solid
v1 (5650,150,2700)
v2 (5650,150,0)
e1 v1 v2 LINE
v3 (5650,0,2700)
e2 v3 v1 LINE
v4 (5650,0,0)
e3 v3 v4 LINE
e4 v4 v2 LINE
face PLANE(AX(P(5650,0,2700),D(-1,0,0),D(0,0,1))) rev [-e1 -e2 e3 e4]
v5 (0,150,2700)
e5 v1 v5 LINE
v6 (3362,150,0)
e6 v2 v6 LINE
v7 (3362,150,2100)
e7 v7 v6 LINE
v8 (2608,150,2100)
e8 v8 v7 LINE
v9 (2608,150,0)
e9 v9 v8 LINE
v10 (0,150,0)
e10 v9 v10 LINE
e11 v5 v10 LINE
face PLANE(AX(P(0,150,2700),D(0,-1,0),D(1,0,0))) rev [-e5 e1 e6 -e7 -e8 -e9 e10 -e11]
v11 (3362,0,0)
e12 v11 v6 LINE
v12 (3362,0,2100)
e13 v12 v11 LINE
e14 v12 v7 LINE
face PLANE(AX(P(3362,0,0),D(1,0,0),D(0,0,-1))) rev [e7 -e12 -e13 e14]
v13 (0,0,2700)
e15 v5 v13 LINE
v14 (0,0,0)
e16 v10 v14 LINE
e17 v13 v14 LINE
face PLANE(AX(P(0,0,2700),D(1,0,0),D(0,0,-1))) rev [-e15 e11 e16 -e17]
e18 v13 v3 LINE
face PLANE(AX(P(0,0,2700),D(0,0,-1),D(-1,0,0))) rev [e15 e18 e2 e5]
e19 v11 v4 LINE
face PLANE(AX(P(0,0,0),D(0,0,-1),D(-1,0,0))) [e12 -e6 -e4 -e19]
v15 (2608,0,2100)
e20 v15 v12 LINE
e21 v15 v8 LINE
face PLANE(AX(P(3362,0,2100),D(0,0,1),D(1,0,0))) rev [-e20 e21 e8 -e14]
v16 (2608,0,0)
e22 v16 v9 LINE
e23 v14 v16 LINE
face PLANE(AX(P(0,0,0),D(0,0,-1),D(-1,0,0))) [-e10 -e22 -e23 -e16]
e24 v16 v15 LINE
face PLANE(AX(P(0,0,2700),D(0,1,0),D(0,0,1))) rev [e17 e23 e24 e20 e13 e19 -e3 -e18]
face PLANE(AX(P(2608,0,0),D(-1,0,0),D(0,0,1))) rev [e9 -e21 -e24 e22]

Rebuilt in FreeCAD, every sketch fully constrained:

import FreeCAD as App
import Part
import Sketcher
Q = App.Units.Quantity


def add_polygon(sketch, points):
    """Adds a closed chain of lines whose ends are joined by coincident constraints."""
    first, n = sketch.GeometryCount, len(points)
    for a, b in zip(points, points[1:] + points[:1]):
        sketch.addGeometry(Part.LineSegment(App.Vector(*a, 0), App.Vector(*b, 0)), False)
    for i in range(n):
        sketch.addConstraint(Sketcher.Constraint("Coincident", first + i, 2, first + (i + 1) % n, 1))

doc = App.newDocument("Part")
body = doc.addObject("PartDesign::Body", "Body")

# Sketch on XY plane
sketch1 = doc.addObject("Sketcher::SketchObject", "Sketch")
body.addObject(sketch1)
sketch1.AttachmentSupport = (doc.XY_Plane, [""])
sketch1.MapMode = "FlatFace"
add_polygon(sketch1, [(0, 150), (0, 0), (5650, 0), (5650, 150)])  # lines 0-3
sketch1.addConstraint([
    Sketcher.Constraint("Vertical", 0),
    Sketcher.Constraint("Horizontal", 1),
    Sketcher.Constraint("Vertical", 2),
    Sketcher.Constraint("Horizontal", 3),
    Sketcher.Constraint("Coincident", 0, 2, -1, 1),
    Sketcher.Constraint("DistanceX", 1, 1, 1, 2, Q("5650 mm")),
    Sketcher.Constraint("DistanceY", 0, 2, 0, 1, Q("150 mm")),
])
pad1 = doc.addObject("PartDesign::Pad", "Pad")
body.addObject(pad1)
pad1.Profile = sketch1
pad1.Length = 2700

# Sketch on XZ plane
sketch2 = doc.addObject("Sketcher::SketchObject", "Sketch001")
body.addObject(sketch2)
sketch2.AttachmentSupport = (doc.XZ_Plane, [""])
sketch2.MapMode = "FlatFace"
sketch2.AttachmentOffset = App.Placement(App.Vector(0, 0, -150), App.Rotation())
add_polygon(sketch2, [(2608, 0), (2608, 2100), (3362, 2100), (3362, 0)])  # lines 0-3
sketch2.addConstraint([
    Sketcher.Constraint("Vertical", 0),
    Sketcher.Constraint("Horizontal", 1),
    Sketcher.Constraint("Vertical", 2),
    Sketcher.Constraint("Horizontal", 3),
    Sketcher.Constraint("PointOnObject", 2, 2, -1),
    Sketcher.Constraint("DistanceX", 1, 1, 1, 2, Q("754 mm")),
    Sketcher.Constraint("DistanceY", 0, 1, 0, 2, Q("2100 mm")),
    Sketcher.Constraint("DistanceX", -1, 1, 0, 2, Q("2608 mm")),
])
pocket1 = doc.addObject("PartDesign::Pocket", "Pocket")
body.addObject(pocket1)
pocket1.Profile = sketch2
pocket1.Type = "ThroughAll"
pocket1.Reversed = True

doc.recompute()
